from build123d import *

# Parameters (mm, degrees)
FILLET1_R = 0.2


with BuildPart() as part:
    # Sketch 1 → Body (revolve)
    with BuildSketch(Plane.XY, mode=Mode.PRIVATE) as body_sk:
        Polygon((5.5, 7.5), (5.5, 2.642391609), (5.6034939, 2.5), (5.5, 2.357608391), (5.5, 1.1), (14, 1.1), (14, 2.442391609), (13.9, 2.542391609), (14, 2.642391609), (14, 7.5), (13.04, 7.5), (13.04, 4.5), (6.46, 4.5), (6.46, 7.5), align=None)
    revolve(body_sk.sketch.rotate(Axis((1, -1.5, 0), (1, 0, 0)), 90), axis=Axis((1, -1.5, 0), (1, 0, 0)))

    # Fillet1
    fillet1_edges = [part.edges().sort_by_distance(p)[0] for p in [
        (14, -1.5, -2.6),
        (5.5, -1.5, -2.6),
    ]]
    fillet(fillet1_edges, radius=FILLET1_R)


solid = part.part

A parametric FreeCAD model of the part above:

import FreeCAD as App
import Part
import Sketcher
Q = App.Units.Quantity


def edges_at(feature, points):
    """Names of the edges that pass closest to the given points."""
    edges = feature.Shape.Edges
    near = lambda p: min(range(len(edges)), key=lambda i: edges[i].distToShape(Part.Vertex(*p))[0])
    return sorted({f"Edge{near(p) + 1}" for p in points})

doc = App.newDocument("Part")
body = doc.addObject("PartDesign::Body", "Body")

# Sketch on XY plane
sketch1 = doc.addObject("Sketcher::SketchObject", "Sketch")
body.addObject(sketch1)
sketch1.AttachmentSupport = (doc.XY_Plane, [""])
sketch1.MapMode = "FlatFace"
sketch1.addGeometry(Part.LineSegment(App.Vector(5.5, 7.5, 0), App.Vector(5.5, 2.642392, 0)), False)
sketch1.addGeometry(Part.LineSegment(App.Vector(5.5, 2.642392, 0), App.Vector(5.603494, 2.5, 0)), False)
sketch1.addGeometry(Part.LineSegment(App.Vector(5.603494, 2.5, 0), App.Vector(5.5, 2.357608, 0)), False)
sketch1.addGeometry(Part.LineSegment(App.Vector(5.5, 2.357608, 0), App.Vector(5.5, 1.1, 0)), False)
sketch1.addGeometry(Part.LineSegment(App.Vector(5.5, 1.1, 0), App.Vector(14, 1.1, 0)), False)
sketch1.addGeometry(Part.LineSegment(App.Vector(14, 1.1, 0), App.Vector(14, 2.442392, 0)), False)
sketch1.addGeometry(Part.LineSegment(App.Vector(14, 2.442392, 0), App.Vector(13.9, 2.542392, 0)), False)
sketch1.addGeometry(Part.LineSegment(App.Vector(13.9, 2.542392, 0), App.Vector(14, 2.642392, 0)), False)
sketch1.addGeometry(Part.LineSegment(App.Vector(14, 2.642392, 0), App.Vector(14, 7.5, 0)), False)
sketch1.addGeometry(Part.LineSegment(App.Vector(14, 7.5, 0), App.Vector(13.04, 7.5, 0)), False)
sketch1.addGeometry(Part.LineSegment(App.Vector(13.04, 7.5, 0), App.Vector(13.04, 4.5, 0)), False)
sketch1.addGeometry(Part.LineSegment(App.Vector(13.04, 4.5, 0), App.Vector(6.46, 4.5, 0)), False)
sketch1.addGeometry(Part.LineSegment(App.Vector(6.46, 4.5, 0), App.Vector(6.46, 7.5, 0)), False)
sketch1.addGeometry(Part.LineSegment(App.Vector(6.46, 7.5, 0), App.Vector(5.5, 7.5, 0)), False)
sketch1.addGeometry(Part.LineSegment(App.Vector(5.5, -1.5, 0), App.Vector(14, -1.5, 0)), True)  # axis
sketch1.addConstraint(Sketcher.Constraint("Coincident", 0, 2, 1, 1))
sketch1.addConstraint(Sketcher.Constraint("Coincident", 1, 2, 2, 1))
sketch1.addConstraint(Sketcher.Constraint("Coincident", 2, 2, 3, 1))
sketch1.addConstraint(Sketcher.Constraint("Coincident", 3, 2, 4, 1))
sketch1.addConstraint(Sketcher.Constraint("Coincident", 4, 2, 5, 1))
sketch1.addConstraint(Sketcher.Constraint("Coincident", 5, 2, 6, 1))
sketch1.addConstraint(Sketcher.Constraint("Coincident", 6, 2, 7, 1))
sketch1.addConstraint(Sketcher.Constraint("Coincident", 7, 2, 8, 1))
sketch1.addConstraint(Sketcher.Constraint("Coincident", 8, 2, 9, 1))
sketch1.addConstraint(Sketcher.Constraint("Coincident", 9, 2, 10, 1))
sketch1.addConstraint(Sketcher.Constraint("Coincident", 10, 2, 11, 1))
sketch1.addConstraint(Sketcher.Constraint("Coincident", 11, 2, 12, 1))
sketch1.addConstraint(Sketcher.Constraint("Coincident", 12, 2, 13, 1))
sketch1.addConstraint(Sketcher.Constraint("Coincident", 13, 2, 0, 1))
sketch1.addConstraint(Sketcher.Constraint("Vertical", 0))
sketch1.addConstraint(Sketcher.Constraint("Vertical", 3))
sketch1.addConstraint(Sketcher.Constraint("Horizontal", 4))
sketch1.addConstraint(Sketcher.Constraint("Vertical", 5))
sketch1.addConstraint(Sketcher.Constraint("Vertical", 8))
sketch1.addConstraint(Sketcher.Constraint("Horizontal", 9))
sketch1.addConstraint(Sketcher.Constraint("Vertical", 10))
sketch1.addConstraint(Sketcher.Constraint("Horizontal", 11))
sketch1.addConstraint(Sketcher.Constraint("Vertical", 12))
sketch1.addConstraint(Sketcher.Constraint("Horizontal", 13))
sketch1.addConstraint(Sketcher.Constraint("Horizontal", 14))
sketch1.addConstraint(Sketcher.Constraint("Perpendicular", 6, 7))
sketch1.addConstraint(Sketcher.Constraint("Horizontal", 0, 2, 7, 2))
sketch1.addConstraint(Sketcher.Constraint("Horizontal", 9, 2, 12, 2))
sketch1.addConstraint(Sketcher.Constraint("Vertical", 0, 2, 2, 2))
sketch1.addConstraint(Sketcher.Constraint("Vertical", 5, 2, 7, 2))
sketch1.addConstraint(Sketcher.Constraint("Vertical", 13, 2, 14, 1))
sketch1.addConstraint(Sketcher.Constraint("Vertical", 8, 2, 14, 2))
sketch1.addConstraint(Sketcher.Constraint("Equal", 9, 13))
sketch1.addConstraint(Sketcher.Constraint("Equal", 1, 2))
sketch1.addConstraint(Sketcher.Constraint("Equal", 6, 7))
sketch1.addConstraint(Sketcher.Constraint("DistanceY", 10, 2, 10, 1, Q("3 mm")))
sketch1.addConstraint(Sketcher.Constraint("DistanceX", 4, 1, 4, 2, Q("8.5 mm")))
sketch1.addConstraint(Sketcher.Constraint("DistanceX", -1, 1, 4, 2, Q("14 mm")))
sketch1.addConstraint(Sketcher.Constraint("DistanceY", 1, 2, 8, 2, Q("5 mm")))
sketch1.addConstraint(Sketcher.Constraint("DistanceY", 14, 1, 1, 2, Q("4 mm")))
sketch1.addConstraint(Sketcher.Constraint("DistanceX", 9, 2, 9, 1, Q("0.96 mm")))
sketch1.addConstraint(Sketcher.Constraint("DistanceY", -1, 1, 1, 2, Q("2.5 mm")))
sketch1.addConstraint(Sketcher.Constraint("DistanceY", -1, 1, 3, 2, Q("1.1 mm")))
sketch1.addConstraint(Sketcher.Constraint("DistanceX", -1, 1, 6, 2, Q("13.9 mm")))
sketch1.addConstraint(Sketcher.Constraint("DistanceY", 0, 2, 0, 1, Q("4.857608 mm")))
sketch1.addConstraint(Sketcher.Constraint("Distance", 1, Q("0.176029 mm")))
revolution = doc.addObject("PartDesign::Revolution", "Revolution")
body.addObject(revolution)
revolution.Profile = sketch1
revolution.ReferenceAxis = (sketch1, ["Axis0"])
revolution.Angle = 360
doc.recompute()

fillet = doc.addObject("PartDesign::Fillet", "Fillet")
body.addObject(fillet)
fillet.Base = (revolution, edges_at(revolution, [(14, -1.5, -2.6), (5.5, -1.5, -2.6)]))
fillet.Radius = 0.2

doc.recompute()
